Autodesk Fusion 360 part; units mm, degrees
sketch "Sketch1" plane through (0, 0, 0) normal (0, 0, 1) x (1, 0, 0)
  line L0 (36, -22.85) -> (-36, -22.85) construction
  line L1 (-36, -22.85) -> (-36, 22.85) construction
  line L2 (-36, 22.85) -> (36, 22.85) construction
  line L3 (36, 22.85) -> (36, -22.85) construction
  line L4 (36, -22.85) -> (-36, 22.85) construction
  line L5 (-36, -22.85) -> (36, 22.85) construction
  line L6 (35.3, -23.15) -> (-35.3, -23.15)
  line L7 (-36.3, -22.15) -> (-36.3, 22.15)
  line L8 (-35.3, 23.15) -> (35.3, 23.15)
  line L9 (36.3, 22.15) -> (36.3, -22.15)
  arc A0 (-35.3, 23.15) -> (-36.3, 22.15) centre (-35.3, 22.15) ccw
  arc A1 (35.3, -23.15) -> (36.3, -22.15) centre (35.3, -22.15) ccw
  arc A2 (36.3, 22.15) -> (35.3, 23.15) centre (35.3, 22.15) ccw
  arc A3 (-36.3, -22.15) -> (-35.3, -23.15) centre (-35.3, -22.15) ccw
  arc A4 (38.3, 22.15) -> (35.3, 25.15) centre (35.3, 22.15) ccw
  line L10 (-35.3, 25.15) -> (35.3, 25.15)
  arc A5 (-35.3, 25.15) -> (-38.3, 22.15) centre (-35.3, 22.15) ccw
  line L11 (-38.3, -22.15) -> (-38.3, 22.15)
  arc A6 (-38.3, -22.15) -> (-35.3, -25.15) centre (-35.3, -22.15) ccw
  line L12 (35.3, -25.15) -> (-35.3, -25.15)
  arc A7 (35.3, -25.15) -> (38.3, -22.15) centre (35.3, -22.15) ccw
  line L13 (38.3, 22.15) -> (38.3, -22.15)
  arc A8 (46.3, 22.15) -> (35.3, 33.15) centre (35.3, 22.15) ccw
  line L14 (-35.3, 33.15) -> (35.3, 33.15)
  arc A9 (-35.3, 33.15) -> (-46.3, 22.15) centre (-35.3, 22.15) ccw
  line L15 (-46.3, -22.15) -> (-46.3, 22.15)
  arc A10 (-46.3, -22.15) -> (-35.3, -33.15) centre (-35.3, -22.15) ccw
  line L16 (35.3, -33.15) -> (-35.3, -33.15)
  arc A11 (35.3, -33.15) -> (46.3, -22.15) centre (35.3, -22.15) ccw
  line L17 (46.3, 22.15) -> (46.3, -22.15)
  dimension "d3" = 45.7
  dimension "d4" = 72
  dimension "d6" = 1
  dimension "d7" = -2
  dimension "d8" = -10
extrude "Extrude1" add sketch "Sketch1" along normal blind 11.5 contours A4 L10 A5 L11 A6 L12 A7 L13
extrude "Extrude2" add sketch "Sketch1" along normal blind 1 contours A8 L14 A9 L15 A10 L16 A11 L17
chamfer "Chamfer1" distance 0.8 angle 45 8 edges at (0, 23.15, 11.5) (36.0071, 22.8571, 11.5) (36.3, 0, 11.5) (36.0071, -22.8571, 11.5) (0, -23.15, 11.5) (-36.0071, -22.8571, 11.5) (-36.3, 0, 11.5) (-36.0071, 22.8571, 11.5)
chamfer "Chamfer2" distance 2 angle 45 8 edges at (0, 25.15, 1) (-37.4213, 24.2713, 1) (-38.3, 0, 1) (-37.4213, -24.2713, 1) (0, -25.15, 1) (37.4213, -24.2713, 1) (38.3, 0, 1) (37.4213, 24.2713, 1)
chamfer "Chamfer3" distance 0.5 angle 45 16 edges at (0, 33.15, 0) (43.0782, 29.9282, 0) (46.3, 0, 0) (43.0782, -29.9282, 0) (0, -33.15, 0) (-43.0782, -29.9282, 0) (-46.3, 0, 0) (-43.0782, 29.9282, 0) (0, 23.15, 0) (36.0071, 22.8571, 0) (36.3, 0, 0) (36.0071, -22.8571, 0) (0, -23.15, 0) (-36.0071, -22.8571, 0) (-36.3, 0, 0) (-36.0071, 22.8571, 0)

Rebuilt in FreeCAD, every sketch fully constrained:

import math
import FreeCAD as App
import Part
import Sketcher

V = App.Vector
Q = App.Units.Quantity


def edges_at(feature, points):
    """Names of the edges that pass closest to the given points."""
    edges = feature.Shape.Edges
    near = lambda p: min(range(len(edges)), key=lambda i: edges[i].distToShape(Part.Vertex(*p))[0])
    return sorted({f"Edge{near(p) + 1}" for p in points})

doc = App.newDocument("Part")
params = doc.addObject("Spreadsheet::Sheet", "Params")
for row, (alias, value) in enumerate([
    ("sketch1_radius", "1 mm"),
    ("sketch1_radius2", "3 mm"),
    ("sketch1_width", "70.6 mm"),
    ("sketch1_height", "44.3 mm"),
    ("pad1_length", "11.5 mm"),
    ("sketch2_radius", "11 mm"),
    ("sketch2_radius2", "3 mm"),
    ("sketch2_width", "70.6 mm"),
    ("sketch2_height", "44.3 mm"),
    ("pad2_length", "1 mm"),
    ("chamfer_size", "0.8 mm"),
    ("chamfer2_size", "2 mm"),
    ("chamfer3_size", "0.5 mm"),
], start=1):
    params.set(f"A{row}", alias)
    params.set(f"B{row}", "=" + value)
    params.setAlias(f"B{row}", alias)

body = doc.addObject("PartDesign::Body", "Body")

sketch1 = body.newObject("Sketcher::SketchObject", "Sketch")
sketch1.AttachmentSupport = (doc.getObject("XY_Plane"), [""])
sketch1.MapMode = "FlatFace"
sketch1.addGeometry([
    Part.LineSegment(V(38.3, -22.1, 0), V(38.3, 22.1, 0)),
    Part.ArcOfCircle(Part.Circle(V(35.3, 22.1, 0), V(0, 0, 1), 3), math.radians(0), math.radians(90)),
    Part.LineSegment(V(35.3, 25.1, 0), V(-35.3, 25.1, 0)),
    Part.ArcOfCircle(Part.Circle(V(-35.3, 22.1, 0), V(0, 0, 1), 3), math.radians(90), math.radians(180)),
    Part.LineSegment(V(-38.3, 22.1, 0), V(-38.3, -22.1, 0)),
    Part.ArcOfCircle(Part.Circle(V(-35.3, -22.1, 0), V(0, 0, 1), 3), math.radians(180), math.radians(270)),
    Part.LineSegment(V(-35.3, -25.1, 0), V(35.3, -25.1, 0)),
    Part.ArcOfCircle(Part.Circle(V(35.3, -22.1, 0), V(0, 0, 1), 3), math.radians(-90), math.radians(0)),
    Part.ArcOfCircle(Part.Circle(V(35.3, -22.1, 0), V(0, 0, 1), 1), math.radians(-90), math.radians(0)),
    Part.LineSegment(V(35.3, -23.1, 0), V(-35.3, -23.1, 0)),
    Part.ArcOfCircle(Part.Circle(V(-35.3, -22.1, 0), V(0, 0, 1), 1), math.radians(180), math.radians(270)),
    Part.LineSegment(V(-36.3, -22.1, 0), V(-36.3, 22.1, 0)),
    Part.ArcOfCircle(Part.Circle(V(-35.3, 22.1, 0), V(0, 0, 1), 1), math.radians(90), math.radians(180)),
    Part.LineSegment(V(-35.3, 23.1, 0), V(35.3, 23.1, 0)),
    Part.ArcOfCircle(Part.Circle(V(35.3, 22.1, 0), V(0, 0, 1), 1), math.radians(0), math.radians(90)),
    Part.LineSegment(V(36.3, 22.1, 0), V(36.3, -22.1, 0)),
], False)
sketch1.addConstraint([
    Sketcher.Constraint("Tangent", 0, 2, 1, 1),
    Sketcher.Constraint("Tangent", 1, 2, 2, 1),
    Sketcher.Constraint("Tangent", 2, 2, 3, 1),
    Sketcher.Constraint("Tangent", 3, 2, 4, 1),
    Sketcher.Constraint("Tangent", 4, 2, 5, 1),
    Sketcher.Constraint("Tangent", 5, 2, 6, 1),
    Sketcher.Constraint("Tangent", 6, 2, 7, 1),
    Sketcher.Constraint("Tangent", 7, 2, 0, 1),
    Sketcher.Constraint("Tangent", 8, 1, 9, 1),
    Sketcher.Constraint("Tangent", 9, 2, 10, 2),
    Sketcher.Constraint("Tangent", 10, 1, 11, 1),
    Sketcher.Constraint("Tangent", 11, 2, 12, 2),
    Sketcher.Constraint("Tangent", 12, 1, 13, 1),
    Sketcher.Constraint("Tangent", 13, 2, 14, 2),
    Sketcher.Constraint("Tangent", 14, 1, 15, 1),
    Sketcher.Constraint("Tangent", 15, 2, 8, 2),
    Sketcher.Constraint("Vertical", 0),
    Sketcher.Constraint("Horizontal", 2),
    Sketcher.Constraint("Vertical", 4),
    Sketcher.Constraint("Horizontal", 6),
    Sketcher.Constraint("Horizontal", 9),
    Sketcher.Constraint("Vertical", 11),
    Sketcher.Constraint("Horizontal", 13),
    Sketcher.Constraint("Vertical", 15),
    Sketcher.Constraint("Coincident", 8, 3, 7, 3),
    Sketcher.Constraint("Coincident", 10, 3, 5, 3),
    Sketcher.Constraint("Coincident", 12, 3, 3, 3),
    Sketcher.Constraint("Equal", 1, 3),
    Sketcher.Constraint("Equal", 3, 5),
    Sketcher.Constraint("Equal", 5, 7),
    Sketcher.Constraint("Equal", 12, 14),
    Sketcher.Constraint("Symmetric", 1, 3, 5, 3, -1, 1),
    Sketcher.Constraint("Radius", 8, Q("1 mm")),
    Sketcher.Constraint("Radius", 1, Q("3 mm")),
    Sketcher.Constraint("DistanceX", 2, 2, 2, 1, Q("70.6 mm")),
    Sketcher.Constraint("DistanceY", 0, 1, 0, 2, Q("44.3 mm")),
])
sketch1.setExpression("Constraints[32]", "Params.sketch1_radius")
sketch1.setExpression("Constraints[33]", "Params.sketch1_radius2")
sketch1.setExpression("Constraints[34]", "Params.sketch1_width")
sketch1.setExpression("Constraints[35]", "Params.sketch1_height")
pad1 = body.newObject("PartDesign::Pad", "Pad")
pad1.Profile = sketch1
pad1.setExpression("Length", "Params.pad1_length")

sketch2 = body.newObject("Sketcher::SketchObject", "Sketch001")
sketch2.AttachmentSupport = (doc.getObject("XY_Plane"), [""])
sketch2.MapMode = "FlatFace"
sketch2.addGeometry([
    Part.LineSegment(V(46.3, -22.1, 0), V(46.3, 22.1, 0)),
    Part.ArcOfCircle(Part.Circle(V(35.3, 22.1, 0), V(0, 0, 1), 11), math.radians(0), math.radians(90)),
    Part.LineSegment(V(35.3, 33.1, 0), V(-35.3, 33.1, 0)),
    Part.ArcOfCircle(Part.Circle(V(-35.3, 22.1, 0), V(0, 0, 1), 11), math.radians(90), math.radians(180)),
    Part.LineSegment(V(-46.3, 22.1, 0), V(-46.3, -22.1, 0)),
    Part.ArcOfCircle(Part.Circle(V(-35.3, -22.1, 0), V(0, 0, 1), 11), math.radians(180), math.radians(270)),
    Part.LineSegment(V(-35.3, -33.1, 0), V(35.3, -33.1, 0)),
    Part.ArcOfCircle(Part.Circle(V(35.3, -22.1, 0), V(0, 0, 1), 11), math.radians(-90), math.radians(0)),
    Part.ArcOfCircle(Part.Circle(V(35.3, 22.1, 0), V(0, 0, 1), 3), math.radians(0), math.radians(90)),
    Part.LineSegment(V(38.3, 22.1, 0), V(38.3, -22.1, 0)),
    Part.ArcOfCircle(Part.Circle(V(35.3, -22.1, 0), V(0, 0, 1), 3), math.radians(-90), math.radians(0)),
    Part.LineSegment(V(35.3, -25.1, 0), V(-35.3, -25.1, 0)),
    Part.ArcOfCircle(Part.Circle(V(-35.3, -22.1, 0), V(0, 0, 1), 3), math.radians(180), math.radians(270)),
    Part.LineSegment(V(-38.3, -22.1, 0), V(-38.3, 22.1, 0)),
    Part.ArcOfCircle(Part.Circle(V(-35.3, 22.1, 0), V(0, 0, 1), 3), math.radians(90), math.radians(180)),
    Part.LineSegment(V(-35.3, 25.1, 0), V(35.3, 25.1, 0)),
], False)
sketch2.addConstraint([
    Sketcher.Constraint("Tangent", 0, 2, 1, 1),
    Sketcher.Constraint("Tangent", 1, 2, 2, 1),
    Sketcher.Constraint("Tangent", 2, 2, 3, 1),
    Sketcher.Constraint("Tangent", 3, 2, 4, 1),
    Sketcher.Constraint("Tangent", 4, 2, 5, 1),
    Sketcher.Constraint("Tangent", 5, 2, 6, 1),
    Sketcher.Constraint("Tangent", 6, 2, 7, 1),
    Sketcher.Constraint("Tangent", 7, 2, 0, 1),
    Sketcher.Constraint("Tangent", 8, 1, 9, 1),
    Sketcher.Constraint("Tangent", 9, 2, 10, 2),
    Sketcher.Constraint("Tangent", 10, 1, 11, 1),
    Sketcher.Constraint("Tangent", 11, 2, 12, 2),
    Sketcher.Constraint("Tangent", 12, 1, 13, 1),
    Sketcher.Constraint("Tangent", 13, 2, 14, 2),
    Sketcher.Constraint("Tangent", 14, 1, 15, 1),
    Sketcher.Constraint("Tangent", 15, 2, 8, 2),
    Sketcher.Constraint("Vertical", 0),
    Sketcher.Constraint("Horizontal", 2),
    Sketcher.Constraint("Vertical", 4),
    Sketcher.Constraint("Horizontal", 6),
    Sketcher.Constraint("Vertical", 9),
    Sketcher.Constraint("Horizontal", 11),
    Sketcher.Constraint("Vertical", 13),
    Sketcher.Constraint("Horizontal", 15),
    Sketcher.Constraint("Coincident", 8, 3, 1, 3),
    Sketcher.Constraint("Coincident", 10, 3, 7, 3),
    Sketcher.Constraint("Coincident", 12, 3, 5, 3),
    Sketcher.Constraint("Equal", 1, 3),
    Sketcher.Constraint("Equal", 3, 5),
    Sketcher.Constraint("Equal", 5, 7),
    Sketcher.Constraint("Equal", 12, 14),
    Sketcher.Constraint("Symmetric", 1, 3, 5, 3, -1, 1),
    Sketcher.Constraint("Radius", 1, Q("11 mm")),
    Sketcher.Constraint("Radius", 8, Q("3 mm")),
    Sketcher.Constraint("DistanceX", 2, 2, 2, 1, Q("70.6 mm")),
    Sketcher.Constraint("DistanceY", 0, 1, 0, 2, Q("44.3 mm")),
])
sketch2.setExpression("Constraints[32]", "Params.sketch2_radius")
sketch2.setExpression("Constraints[33]", "Params.sketch2_radius2")
sketch2.setExpression("Constraints[34]", "Params.sketch2_width")
sketch2.setExpression("Constraints[35]", "Params.sketch2_height")
pad2 = body.newObject("PartDesign::Pad", "Pad001")
pad2.Profile = sketch2
pad2.setExpression("Length", "Params.pad2_length")
doc.recompute()

chamfer = body.newObject("PartDesign::Chamfer", "Chamfer")
chamfer.Base = (pad2, edges_at(pad2, [
    (0, 23.15, 11.5),
    (36.007, 22.857, 11.5),
    (36.3, 0, 11.5),
    (36.007, -22.857, 11.5),
    (0, -23.15, 11.5),
    (-36.007, -22.857, 11.5),
    (-36.3, 0, 11.5),
    (-36.007, 22.857, 11.5),
]))
chamfer.setExpression("Size", "Params.chamfer_size")
doc.recompute()

chamfer2 = body.newObject("PartDesign::Chamfer", "Chamfer001")
chamfer2.Base = (chamfer, edges_at(chamfer, [
    (0, 25.15, 1),
    (-37.421, 24.271, 1),
    (-38.3, 0, 1),
    (-37.421, -24.271, 1),
    (0, -25.15, 1),
    (37.421, -24.271, 1),
    (38.3, 0, 1),
    (37.421, 24.271, 1),
]))
chamfer2.setExpression("Size", "Params.chamfer2_size")
doc.recompute()

chamfer3 = body.newObject("PartDesign::Chamfer", "Chamfer002")
chamfer3.Base = (chamfer2, edges_at(chamfer2, [
    (0, 33.15, 0),
    (43.078, 29.928, 0),
    (46.3, 0, 0),
    (43.078, -29.928, 0),
    (0, -33.15, 0),
    (-43.078, -29.928, 0),
    (-46.3, 0, 0),
    (-43.078, 29.928, 0),
    (0, 23.15, 0),
    (36.007, 22.857, 0),
    (36.3, 0, 0),
    (36.007, -22.857, 0),
    (0, -23.15, 0),
    (-36.007, -22.857, 0),
    (-36.3, 0, 0),
    (-36.007, 22.857, 0),
]))
chamfer3.setExpression("Size", "Params.chamfer3_size")

doc.recompute()
